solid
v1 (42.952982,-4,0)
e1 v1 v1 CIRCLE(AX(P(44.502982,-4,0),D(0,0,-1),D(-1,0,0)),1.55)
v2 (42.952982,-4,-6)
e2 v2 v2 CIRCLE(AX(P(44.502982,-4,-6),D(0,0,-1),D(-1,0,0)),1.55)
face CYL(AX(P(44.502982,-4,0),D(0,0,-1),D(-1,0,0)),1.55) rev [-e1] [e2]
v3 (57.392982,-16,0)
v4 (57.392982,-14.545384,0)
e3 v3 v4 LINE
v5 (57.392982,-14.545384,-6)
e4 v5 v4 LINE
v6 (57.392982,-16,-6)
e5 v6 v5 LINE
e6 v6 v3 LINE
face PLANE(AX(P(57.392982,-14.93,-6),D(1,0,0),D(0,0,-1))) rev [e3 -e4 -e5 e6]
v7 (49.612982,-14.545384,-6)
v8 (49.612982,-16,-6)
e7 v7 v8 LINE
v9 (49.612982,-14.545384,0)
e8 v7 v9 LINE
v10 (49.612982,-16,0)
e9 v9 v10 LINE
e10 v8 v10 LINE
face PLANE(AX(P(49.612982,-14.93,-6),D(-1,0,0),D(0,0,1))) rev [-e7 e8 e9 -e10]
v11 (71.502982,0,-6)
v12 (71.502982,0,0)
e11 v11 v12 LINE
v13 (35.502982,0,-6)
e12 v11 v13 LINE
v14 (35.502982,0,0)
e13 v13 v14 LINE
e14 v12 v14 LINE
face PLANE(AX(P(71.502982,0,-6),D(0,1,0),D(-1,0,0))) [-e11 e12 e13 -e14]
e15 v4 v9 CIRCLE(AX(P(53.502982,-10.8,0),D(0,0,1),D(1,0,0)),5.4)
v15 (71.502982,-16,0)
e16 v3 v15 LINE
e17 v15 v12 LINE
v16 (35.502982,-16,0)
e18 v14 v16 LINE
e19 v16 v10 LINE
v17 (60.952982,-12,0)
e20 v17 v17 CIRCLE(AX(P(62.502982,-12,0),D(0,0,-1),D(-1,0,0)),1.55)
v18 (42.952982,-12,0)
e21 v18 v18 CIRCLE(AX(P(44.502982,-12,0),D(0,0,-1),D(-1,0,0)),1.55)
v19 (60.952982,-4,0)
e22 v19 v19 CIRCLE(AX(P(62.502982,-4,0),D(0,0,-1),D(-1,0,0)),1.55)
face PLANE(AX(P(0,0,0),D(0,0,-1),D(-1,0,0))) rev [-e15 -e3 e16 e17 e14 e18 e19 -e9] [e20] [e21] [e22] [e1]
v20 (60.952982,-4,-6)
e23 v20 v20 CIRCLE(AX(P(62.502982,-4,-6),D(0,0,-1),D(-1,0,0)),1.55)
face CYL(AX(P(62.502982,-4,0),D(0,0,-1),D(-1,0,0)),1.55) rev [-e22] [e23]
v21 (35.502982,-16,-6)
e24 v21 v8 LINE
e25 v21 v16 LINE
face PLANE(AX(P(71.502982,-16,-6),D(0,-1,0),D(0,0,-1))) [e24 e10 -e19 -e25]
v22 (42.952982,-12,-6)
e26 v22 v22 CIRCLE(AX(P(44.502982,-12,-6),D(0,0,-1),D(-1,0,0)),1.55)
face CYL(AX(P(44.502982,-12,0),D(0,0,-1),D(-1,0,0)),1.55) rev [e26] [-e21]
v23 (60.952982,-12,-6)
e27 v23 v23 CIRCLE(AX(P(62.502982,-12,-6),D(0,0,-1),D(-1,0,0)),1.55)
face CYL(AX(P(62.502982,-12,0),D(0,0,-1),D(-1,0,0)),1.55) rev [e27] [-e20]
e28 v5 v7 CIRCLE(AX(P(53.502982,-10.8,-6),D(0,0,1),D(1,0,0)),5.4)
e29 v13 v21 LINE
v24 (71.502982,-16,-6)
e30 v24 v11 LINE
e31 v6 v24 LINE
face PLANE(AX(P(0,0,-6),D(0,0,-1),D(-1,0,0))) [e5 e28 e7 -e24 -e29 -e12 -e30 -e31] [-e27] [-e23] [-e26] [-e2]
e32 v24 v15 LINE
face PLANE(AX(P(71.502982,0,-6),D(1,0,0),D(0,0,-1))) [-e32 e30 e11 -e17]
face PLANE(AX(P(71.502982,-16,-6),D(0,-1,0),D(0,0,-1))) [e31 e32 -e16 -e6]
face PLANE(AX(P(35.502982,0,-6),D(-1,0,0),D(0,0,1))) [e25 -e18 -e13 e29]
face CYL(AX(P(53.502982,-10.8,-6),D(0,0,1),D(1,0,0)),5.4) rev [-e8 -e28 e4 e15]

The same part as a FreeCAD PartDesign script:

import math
import FreeCAD as App
import Part
import Sketcher


def add_polygon(sketch, points):
    """Adds a closed chain of lines whose ends are joined by coincident constraints."""
    first, n = sketch.GeometryCount, len(points)
    for a, b in zip(points, points[1:] + points[:1]):
        sketch.addGeometry(Part.LineSegment(App.Vector(*a, 0), App.Vector(*b, 0)), False)
    for i in range(n):
        sketch.addConstraint(Sketcher.Constraint("Coincident", first + i, 2, first + (i + 1) % n, 1))

doc = App.newDocument("Part")
body = doc.addObject("PartDesign::Body", "Body")

# Sketch on XY plane
sketch1 = doc.addObject("Sketcher::SketchObject", "Sketch")
body.addObject(sketch1)
sketch1.AttachmentSupport = (doc.XY_Plane, [""])
sketch1.MapMode = "FlatFace"
add_polygon(sketch1, [(36, 0), (36, -16), (72, -16), (72, 0)])  # lines 0-3
sketch1.addConstraint([
    Sketcher.Constraint("Vertical", 0),
    Sketcher.Constraint("Horizontal", 1),
    Sketcher.Constraint("Vertical", 2),
    Sketcher.Constraint("Horizontal", 3),
    Sketcher.Constraint("PointOnObject", 2, 2, -1),
    Sketcher.Constraint("DistanceX", 1, 1, 1, 2, 36.0),
    Sketcher.Constraint("DistanceY", 0, 2, 0, 1, 16.0),
    Sketcher.Constraint("DistanceX", -1, 1, 0, 2, 35.502982),
])
pad1 = doc.addObject("PartDesign::Pad", "Pad")
body.addObject(pad1)
pad1.Profile = sketch1
pad1.Length = 6
pad1.Reversed = True

# Sketch on XY plane
sketch2 = doc.addObject("Sketcher::SketchObject", "Sketch001")
body.addObject(sketch2)
sketch2.AttachmentSupport = (doc.XY_Plane, [""])
sketch2.MapMode = "FlatFace"
sketch2.addGeometry([
    Part.LineSegment(App.Vector(49.6, -16, 0), App.Vector(57.4, -16, 0)),
    Part.LineSegment(App.Vector(57.4, -16, 0), App.Vector(57.4, -14.5, 0)),
    Part.ArcOfCircle(Part.Circle(App.Vector(53.5, -10.8, 0), App.Vector(0, 0, 1), 5.4), math.radians(-44), math.radians(224)),
    Part.LineSegment(App.Vector(49.6, -14.5, 0), App.Vector(49.6, -16, 0)),
], False)
sketch2.addConstraint([
    Sketcher.Constraint("Coincident", 0, 2, 1, 1),
    Sketcher.Constraint("Coincident", 1, 2, 2, 1),
    Sketcher.Constraint("Coincident", 2, 2, 3, 1),
    Sketcher.Constraint("Coincident", 3, 2, 0, 1),
    Sketcher.Constraint("Horizontal", 0),
    Sketcher.Constraint("Vertical", 1),
    Sketcher.Constraint("Vertical", 3),
    Sketcher.Constraint("Horizontal", 1, 2, 2, 2),
    Sketcher.Constraint("Radius", 2, 5.4),
    Sketcher.Constraint("DistanceY", 0, 2, -1, 1, 16.0),
    Sketcher.Constraint("DistanceX", 0, 1, 0, 2, 7.78),
    Sketcher.Constraint("DistanceY", 2, 3, -1, 1, 10.8),
    Sketcher.Constraint("DistanceX", -1, 1, 2, 3, 53.502982),
])
pocket1 = doc.addObject("PartDesign::Pocket", "Pocket")
body.addObject(pocket1)
pocket1.Profile = sketch2
pocket1.Length = 6

# Sketch on XY plane
sketch3 = doc.addObject("Sketcher::SketchObject", "Sketch002")
body.addObject(sketch3)
sketch3.AttachmentSupport = (doc.XY_Plane, [""])
sketch3.MapMode = "FlatFace"
sketch3.AttachmentOffset = App.Placement(App.Vector(0, 0, -6), App.Rotation())
sketch3.addGeometry([
    Part.Circle(App.Vector(44.5, -12, 0), App.Vector(0, 0, 1), 1.6),
    Part.Circle(App.Vector(44.5, -4, 0), App.Vector(0, 0, 1), 1.6),
    Part.Circle(App.Vector(62.5, -12, 0), App.Vector(0, 0, 1), 1.6),
    Part.Circle(App.Vector(62.5, -4, 0), App.Vector(0, 0, 1), 1.6),
], False)
sketch3.addConstraint([
    Sketcher.Constraint("Equal", 0, 1),
    Sketcher.Constraint("Equal", 1, 2),
    Sketcher.Constraint("Equal", 2, 3),
    Sketcher.Constraint("Horizontal", 0, 3, 2, 3),
    Sketcher.Constraint("Horizontal", 1, 3, 3, 3),
    Sketcher.Constraint("Vertical", 0, 3, 1, 3),
    Sketcher.Constraint("Vertical", 2, 3, 3, 3),
    Sketcher.Constraint("Diameter", 0, 3.1),
    Sketcher.Constraint("DistanceY", 0, 3, -1, 1, 12.0),
    Sketcher.Constraint("DistanceY", 1, 3, -1, 1, 4.0),
    Sketcher.Constraint("DistanceX", 0, 3, 2, 3, 18.0),
    Sketcher.Constraint("DistanceX", -1, 1, 0, 3, 44.502982),
])
pocket2 = doc.addObject("PartDesign::Pocket", "Pocket001")
body.addObject(pocket2)
pocket2.Profile = sketch3
pocket2.Type = "ThroughAll"
pocket2.Reversed = True

doc.recompute()
